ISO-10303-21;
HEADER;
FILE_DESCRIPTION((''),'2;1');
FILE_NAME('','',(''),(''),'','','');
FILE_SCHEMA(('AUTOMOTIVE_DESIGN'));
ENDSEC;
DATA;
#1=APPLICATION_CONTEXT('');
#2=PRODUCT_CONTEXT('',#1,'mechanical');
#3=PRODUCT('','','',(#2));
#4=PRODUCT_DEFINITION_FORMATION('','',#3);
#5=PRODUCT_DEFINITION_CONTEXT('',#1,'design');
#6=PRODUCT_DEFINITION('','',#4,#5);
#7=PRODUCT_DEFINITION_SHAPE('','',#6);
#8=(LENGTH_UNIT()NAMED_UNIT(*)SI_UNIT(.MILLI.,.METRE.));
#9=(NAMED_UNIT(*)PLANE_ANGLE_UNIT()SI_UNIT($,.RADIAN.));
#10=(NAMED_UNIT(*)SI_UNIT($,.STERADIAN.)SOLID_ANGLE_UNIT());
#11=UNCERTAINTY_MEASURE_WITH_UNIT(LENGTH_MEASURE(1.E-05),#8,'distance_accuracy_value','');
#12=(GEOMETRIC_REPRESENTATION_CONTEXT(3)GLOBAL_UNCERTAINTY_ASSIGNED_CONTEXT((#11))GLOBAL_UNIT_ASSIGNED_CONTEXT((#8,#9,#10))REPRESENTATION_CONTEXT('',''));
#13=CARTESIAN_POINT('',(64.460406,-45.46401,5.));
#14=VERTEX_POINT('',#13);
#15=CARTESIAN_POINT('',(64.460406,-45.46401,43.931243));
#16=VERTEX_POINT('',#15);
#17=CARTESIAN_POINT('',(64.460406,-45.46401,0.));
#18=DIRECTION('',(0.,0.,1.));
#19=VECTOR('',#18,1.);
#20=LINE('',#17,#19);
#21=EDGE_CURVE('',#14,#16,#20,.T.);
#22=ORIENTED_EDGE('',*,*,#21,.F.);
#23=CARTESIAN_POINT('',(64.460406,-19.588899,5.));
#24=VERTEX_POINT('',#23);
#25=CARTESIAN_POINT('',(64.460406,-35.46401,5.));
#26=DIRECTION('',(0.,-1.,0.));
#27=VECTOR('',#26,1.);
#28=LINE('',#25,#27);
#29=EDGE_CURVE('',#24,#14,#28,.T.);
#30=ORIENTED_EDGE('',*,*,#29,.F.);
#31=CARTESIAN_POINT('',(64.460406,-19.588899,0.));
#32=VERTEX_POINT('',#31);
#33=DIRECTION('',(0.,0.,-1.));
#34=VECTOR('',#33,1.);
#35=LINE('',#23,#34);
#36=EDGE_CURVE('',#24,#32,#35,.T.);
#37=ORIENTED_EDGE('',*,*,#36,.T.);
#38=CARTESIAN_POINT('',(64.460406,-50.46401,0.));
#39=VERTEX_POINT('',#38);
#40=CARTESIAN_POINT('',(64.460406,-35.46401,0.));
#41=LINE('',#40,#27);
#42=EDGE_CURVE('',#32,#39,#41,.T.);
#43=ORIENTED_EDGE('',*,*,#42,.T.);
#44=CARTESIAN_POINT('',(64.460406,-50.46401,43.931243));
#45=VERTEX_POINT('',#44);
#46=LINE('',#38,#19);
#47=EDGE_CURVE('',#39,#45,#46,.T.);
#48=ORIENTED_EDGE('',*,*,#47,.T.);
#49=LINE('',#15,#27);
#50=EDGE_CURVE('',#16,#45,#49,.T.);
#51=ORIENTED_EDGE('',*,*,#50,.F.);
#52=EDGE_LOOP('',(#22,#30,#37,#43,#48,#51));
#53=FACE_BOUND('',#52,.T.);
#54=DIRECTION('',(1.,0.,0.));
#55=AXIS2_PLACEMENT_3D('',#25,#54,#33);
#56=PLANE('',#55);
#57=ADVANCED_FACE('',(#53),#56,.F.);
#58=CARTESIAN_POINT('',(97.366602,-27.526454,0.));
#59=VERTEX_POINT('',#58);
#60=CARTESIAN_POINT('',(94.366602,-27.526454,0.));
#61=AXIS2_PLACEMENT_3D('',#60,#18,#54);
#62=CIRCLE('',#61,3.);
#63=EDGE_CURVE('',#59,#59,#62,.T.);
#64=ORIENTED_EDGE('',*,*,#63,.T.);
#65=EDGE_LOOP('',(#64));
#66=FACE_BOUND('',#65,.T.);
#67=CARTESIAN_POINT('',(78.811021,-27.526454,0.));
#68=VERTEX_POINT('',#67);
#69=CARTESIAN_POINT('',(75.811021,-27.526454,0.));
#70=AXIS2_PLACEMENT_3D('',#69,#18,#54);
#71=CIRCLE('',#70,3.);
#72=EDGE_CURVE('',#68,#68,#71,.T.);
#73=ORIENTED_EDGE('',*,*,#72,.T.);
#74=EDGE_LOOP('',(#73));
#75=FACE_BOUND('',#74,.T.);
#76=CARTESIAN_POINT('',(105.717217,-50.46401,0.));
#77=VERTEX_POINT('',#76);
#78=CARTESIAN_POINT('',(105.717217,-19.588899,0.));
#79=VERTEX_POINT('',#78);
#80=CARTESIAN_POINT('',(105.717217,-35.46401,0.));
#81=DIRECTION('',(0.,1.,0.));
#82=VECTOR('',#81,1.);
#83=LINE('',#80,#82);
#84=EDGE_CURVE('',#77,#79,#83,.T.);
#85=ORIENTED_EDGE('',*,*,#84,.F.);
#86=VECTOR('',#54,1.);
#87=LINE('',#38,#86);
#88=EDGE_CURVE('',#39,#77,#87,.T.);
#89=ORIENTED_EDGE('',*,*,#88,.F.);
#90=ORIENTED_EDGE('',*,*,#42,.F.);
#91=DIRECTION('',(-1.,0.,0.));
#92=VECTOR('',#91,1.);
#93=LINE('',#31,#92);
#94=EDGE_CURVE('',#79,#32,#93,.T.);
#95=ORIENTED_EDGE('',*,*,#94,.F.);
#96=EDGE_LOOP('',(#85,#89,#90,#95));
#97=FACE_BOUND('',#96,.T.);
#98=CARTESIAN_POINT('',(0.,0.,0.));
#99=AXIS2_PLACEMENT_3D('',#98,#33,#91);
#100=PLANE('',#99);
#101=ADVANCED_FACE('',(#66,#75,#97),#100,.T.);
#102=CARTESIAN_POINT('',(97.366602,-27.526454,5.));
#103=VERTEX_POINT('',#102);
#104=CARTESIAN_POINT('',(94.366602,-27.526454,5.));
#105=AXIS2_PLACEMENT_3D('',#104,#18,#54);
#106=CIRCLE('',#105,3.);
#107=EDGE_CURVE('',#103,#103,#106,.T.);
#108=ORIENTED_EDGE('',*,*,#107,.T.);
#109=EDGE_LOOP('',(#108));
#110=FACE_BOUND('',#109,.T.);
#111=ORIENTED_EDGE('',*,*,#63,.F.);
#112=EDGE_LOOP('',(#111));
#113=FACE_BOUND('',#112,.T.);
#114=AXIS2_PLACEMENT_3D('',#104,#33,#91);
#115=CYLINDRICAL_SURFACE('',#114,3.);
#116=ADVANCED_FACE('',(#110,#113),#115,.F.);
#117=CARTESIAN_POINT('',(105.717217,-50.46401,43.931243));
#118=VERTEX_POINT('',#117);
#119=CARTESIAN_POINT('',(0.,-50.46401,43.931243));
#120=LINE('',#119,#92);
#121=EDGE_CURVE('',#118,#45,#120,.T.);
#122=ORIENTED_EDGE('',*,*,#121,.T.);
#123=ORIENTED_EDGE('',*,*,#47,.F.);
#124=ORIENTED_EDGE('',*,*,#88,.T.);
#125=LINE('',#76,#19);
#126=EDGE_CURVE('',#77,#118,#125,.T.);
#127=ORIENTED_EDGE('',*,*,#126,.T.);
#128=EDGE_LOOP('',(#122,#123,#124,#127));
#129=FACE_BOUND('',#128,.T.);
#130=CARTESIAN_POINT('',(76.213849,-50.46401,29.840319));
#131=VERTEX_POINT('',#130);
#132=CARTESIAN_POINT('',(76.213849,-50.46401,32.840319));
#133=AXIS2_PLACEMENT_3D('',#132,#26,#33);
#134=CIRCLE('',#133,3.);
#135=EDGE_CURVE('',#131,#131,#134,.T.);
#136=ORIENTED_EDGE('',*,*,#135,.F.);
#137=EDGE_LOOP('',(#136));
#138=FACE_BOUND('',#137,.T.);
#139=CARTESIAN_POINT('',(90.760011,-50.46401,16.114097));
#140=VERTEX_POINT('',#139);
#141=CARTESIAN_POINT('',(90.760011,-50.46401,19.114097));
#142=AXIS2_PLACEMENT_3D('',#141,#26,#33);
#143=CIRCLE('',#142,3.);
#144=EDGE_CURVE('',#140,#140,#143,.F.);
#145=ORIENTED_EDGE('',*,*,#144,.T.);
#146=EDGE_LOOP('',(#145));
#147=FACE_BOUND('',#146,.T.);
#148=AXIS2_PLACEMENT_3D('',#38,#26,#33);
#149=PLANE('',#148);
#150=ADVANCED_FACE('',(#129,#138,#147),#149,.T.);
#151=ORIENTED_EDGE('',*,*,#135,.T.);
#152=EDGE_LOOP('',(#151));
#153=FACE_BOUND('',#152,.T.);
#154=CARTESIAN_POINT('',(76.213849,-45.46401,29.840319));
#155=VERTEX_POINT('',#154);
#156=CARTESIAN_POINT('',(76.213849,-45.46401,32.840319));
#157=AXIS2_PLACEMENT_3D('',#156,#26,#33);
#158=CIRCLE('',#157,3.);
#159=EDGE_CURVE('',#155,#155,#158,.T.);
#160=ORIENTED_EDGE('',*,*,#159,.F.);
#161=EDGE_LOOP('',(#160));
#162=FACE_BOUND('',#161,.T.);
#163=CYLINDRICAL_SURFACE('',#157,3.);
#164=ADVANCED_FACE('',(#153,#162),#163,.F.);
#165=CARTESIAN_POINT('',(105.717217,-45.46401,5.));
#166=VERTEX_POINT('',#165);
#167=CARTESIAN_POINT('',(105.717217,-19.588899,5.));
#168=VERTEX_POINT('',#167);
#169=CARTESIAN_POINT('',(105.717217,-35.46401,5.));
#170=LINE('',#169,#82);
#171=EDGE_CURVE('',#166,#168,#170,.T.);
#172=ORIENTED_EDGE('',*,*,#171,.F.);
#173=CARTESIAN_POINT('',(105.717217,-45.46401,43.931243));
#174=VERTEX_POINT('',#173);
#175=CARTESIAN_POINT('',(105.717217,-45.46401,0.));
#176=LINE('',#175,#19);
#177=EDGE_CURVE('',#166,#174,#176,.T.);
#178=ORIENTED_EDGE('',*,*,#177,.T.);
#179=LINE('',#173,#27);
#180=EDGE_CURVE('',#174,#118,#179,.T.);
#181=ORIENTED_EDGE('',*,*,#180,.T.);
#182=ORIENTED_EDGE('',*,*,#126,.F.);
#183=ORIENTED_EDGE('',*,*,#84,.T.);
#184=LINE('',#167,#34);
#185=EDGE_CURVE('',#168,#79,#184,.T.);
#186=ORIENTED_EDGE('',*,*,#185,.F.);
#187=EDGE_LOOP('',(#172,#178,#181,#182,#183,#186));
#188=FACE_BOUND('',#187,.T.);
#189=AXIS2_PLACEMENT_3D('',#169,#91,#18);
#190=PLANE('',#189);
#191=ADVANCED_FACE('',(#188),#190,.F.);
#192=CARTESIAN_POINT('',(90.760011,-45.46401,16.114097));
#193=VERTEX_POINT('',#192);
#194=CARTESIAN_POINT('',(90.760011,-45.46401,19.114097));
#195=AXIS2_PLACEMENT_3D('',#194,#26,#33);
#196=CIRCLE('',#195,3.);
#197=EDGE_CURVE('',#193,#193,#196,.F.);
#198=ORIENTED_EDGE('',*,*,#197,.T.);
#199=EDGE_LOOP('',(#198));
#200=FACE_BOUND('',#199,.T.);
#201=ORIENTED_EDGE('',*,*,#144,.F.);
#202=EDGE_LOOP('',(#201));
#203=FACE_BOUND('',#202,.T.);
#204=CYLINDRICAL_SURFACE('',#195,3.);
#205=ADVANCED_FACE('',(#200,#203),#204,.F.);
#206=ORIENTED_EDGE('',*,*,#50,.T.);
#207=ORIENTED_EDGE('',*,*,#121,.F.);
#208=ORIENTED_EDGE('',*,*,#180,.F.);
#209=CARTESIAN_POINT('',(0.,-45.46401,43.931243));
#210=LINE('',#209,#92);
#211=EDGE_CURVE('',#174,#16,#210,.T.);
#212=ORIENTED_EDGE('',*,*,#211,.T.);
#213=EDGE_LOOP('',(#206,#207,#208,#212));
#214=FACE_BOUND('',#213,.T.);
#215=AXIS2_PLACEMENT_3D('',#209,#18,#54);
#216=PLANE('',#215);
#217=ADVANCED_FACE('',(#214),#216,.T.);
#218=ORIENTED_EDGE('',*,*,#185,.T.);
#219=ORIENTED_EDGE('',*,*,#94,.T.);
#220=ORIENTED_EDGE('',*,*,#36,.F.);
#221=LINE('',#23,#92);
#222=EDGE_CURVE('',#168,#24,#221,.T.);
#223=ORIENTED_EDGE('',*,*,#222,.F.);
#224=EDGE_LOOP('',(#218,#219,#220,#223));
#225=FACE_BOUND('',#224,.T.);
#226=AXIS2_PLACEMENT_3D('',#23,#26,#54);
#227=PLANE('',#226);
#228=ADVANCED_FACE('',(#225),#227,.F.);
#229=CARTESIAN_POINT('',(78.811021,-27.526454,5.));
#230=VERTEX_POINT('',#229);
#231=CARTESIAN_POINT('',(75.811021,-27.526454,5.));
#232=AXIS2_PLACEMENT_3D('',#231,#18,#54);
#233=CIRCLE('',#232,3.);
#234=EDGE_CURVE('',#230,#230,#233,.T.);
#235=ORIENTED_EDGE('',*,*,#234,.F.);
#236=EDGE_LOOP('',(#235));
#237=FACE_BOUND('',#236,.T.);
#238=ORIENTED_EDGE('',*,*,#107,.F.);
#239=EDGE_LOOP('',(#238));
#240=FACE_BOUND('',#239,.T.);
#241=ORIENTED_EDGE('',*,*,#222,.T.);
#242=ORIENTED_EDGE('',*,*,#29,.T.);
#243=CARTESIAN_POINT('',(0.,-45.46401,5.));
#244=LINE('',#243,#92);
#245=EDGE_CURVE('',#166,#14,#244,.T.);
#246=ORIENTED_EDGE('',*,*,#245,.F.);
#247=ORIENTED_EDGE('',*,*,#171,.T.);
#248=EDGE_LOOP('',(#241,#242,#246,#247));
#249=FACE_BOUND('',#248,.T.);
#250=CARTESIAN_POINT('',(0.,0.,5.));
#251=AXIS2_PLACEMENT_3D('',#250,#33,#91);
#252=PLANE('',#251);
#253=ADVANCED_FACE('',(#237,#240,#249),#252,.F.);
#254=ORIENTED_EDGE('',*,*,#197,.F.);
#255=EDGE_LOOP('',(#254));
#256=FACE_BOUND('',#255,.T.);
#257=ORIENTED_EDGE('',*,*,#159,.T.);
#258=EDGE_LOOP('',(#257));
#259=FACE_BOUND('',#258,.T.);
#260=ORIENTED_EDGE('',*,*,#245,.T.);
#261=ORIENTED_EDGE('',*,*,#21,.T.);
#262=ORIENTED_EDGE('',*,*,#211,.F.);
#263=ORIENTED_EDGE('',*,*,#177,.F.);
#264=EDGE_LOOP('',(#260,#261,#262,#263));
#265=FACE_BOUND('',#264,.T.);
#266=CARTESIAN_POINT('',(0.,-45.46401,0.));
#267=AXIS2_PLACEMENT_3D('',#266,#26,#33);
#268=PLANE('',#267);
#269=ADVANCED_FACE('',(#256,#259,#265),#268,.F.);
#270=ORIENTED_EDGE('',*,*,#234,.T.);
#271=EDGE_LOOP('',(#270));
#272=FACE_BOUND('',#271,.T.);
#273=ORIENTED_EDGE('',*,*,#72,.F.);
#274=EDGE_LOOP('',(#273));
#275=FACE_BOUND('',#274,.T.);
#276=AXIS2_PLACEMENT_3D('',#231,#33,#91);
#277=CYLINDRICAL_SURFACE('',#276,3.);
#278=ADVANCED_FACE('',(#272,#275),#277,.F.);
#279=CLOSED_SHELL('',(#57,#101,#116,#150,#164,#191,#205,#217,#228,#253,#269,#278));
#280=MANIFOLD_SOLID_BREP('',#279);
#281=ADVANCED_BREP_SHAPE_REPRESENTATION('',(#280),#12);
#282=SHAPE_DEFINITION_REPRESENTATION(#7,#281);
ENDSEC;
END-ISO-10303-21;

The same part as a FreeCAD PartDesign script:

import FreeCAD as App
import Part
import Sketcher

V = App.Vector


def add_polygon(sketch, points):
    """Adds a closed chain of lines whose ends are joined by coincident constraints."""
    first, n = sketch.GeometryCount, len(points)
    for a, b in zip(points, points[1:] + points[:1]):
        sketch.addGeometry(Part.LineSegment(App.Vector(*a, 0), App.Vector(*b, 0)), False)
    for i in range(n):
        sketch.addConstraint(Sketcher.Constraint("Coincident", first + i, 2, first + (i + 1) % n, 1))

doc = App.newDocument("Part")
body = doc.addObject("PartDesign::Body", "Body")

sketch1 = body.newObject("Sketcher::SketchObject", "Sketch")
sketch1.AttachmentSupport = (doc.getObject("XY_Plane"), [""])
sketch1.MapMode = "FlatFace"
add_polygon(sketch1, [(64.5, -19.6), (64.5, -35.5), (105.7, -35.5), (105.7, -19.6)])
sketch1.addGeometry(Part.Circle(V(75.8, -27.5, 0), V(0, 0, 1), 3), False)
sketch1.addGeometry(Part.Circle(V(94.4, -27.5, 0), V(0, 0, 1), 3), False)
sketch1.addConstraint([
    Sketcher.Constraint("Vertical", 0),
    Sketcher.Constraint("Horizontal", 1),
    Sketcher.Constraint("Vertical", 2),
    Sketcher.Constraint("Horizontal", 3),
    Sketcher.Constraint("Equal", 4, 5),
    Sketcher.Constraint("Horizontal", 4, 3, 5, 3),
    Sketcher.Constraint("Diameter", 4, 6.0),
    Sketcher.Constraint("DistanceX", 1, 1, 1, 2, 41.256811),
    Sketcher.Constraint("DistanceY", 0, 2, 0, 1, 15.875112),
    Sketcher.Constraint("DistanceX", -1, 1, 5, 3, 94.366602),
    Sketcher.Constraint("DistanceY", 2, 2, -1, 1, 19.588899),
    Sketcher.Constraint("DistanceX", -1, 1, 4, 3, 75.811021),
    Sketcher.Constraint("DistanceY", 4, 3, -1, 1, 27.526454),
    Sketcher.Constraint("DistanceX", -1, 1, 0, 2, 64.460406),
])
pad1 = body.newObject("PartDesign::Pad", "Pad")
pad1.Profile = sketch1
pad1.Length = 5

sketch2 = body.newObject("Sketcher::SketchObject", "Sketch001")
sketch2.AttachmentSupport = (doc.getObject("XY_Plane"), [""])
sketch2.MapMode = "FlatFace"
sketch2.AttachmentOffset = App.Placement(V(0, 0, 5), App.Rotation())
add_polygon(sketch2, [(64, -35), (64, -50), (106, -50), (106, -35)])
sketch2.addConstraint([
    Sketcher.Constraint("Vertical", 0),
    Sketcher.Constraint("Horizontal", 1),
    Sketcher.Constraint("Vertical", 2),
    Sketcher.Constraint("Horizontal", 3),
    Sketcher.Constraint("DistanceY", 0, 2, 0, 1, 15.0),
    Sketcher.Constraint("DistanceX", 1, 1, 1, 2, 41.256811),
    Sketcher.Constraint("DistanceY", 0, 2, -1, 1, 50.46401),
    Sketcher.Constraint("DistanceX", -1, 1, 0, 2, 64.460406),
])
pad2 = body.newObject("PartDesign::Pad", "Pad001")
pad2.Profile = sketch2
pad2.Length = 5
pad2.Reversed = True

sketch3 = body.newObject("Sketcher::SketchObject", "Sketch002")
sketch3.AttachmentSupport = (doc.getObject("XZ_Plane"), [""])
sketch3.MapMode = "FlatFace"
sketch3.AttachmentOffset = App.Placement(V(0, 0, 50.46401), App.Rotation())
add_polygon(sketch3, [(64.5, 43.9), (64.5, 5), (105.7, 5), (105.7, 43.9)])
sketch3.addGeometry(Part.Circle(V(90.8, 19.1, 0), V(0, 0, 1), 3), False)
sketch3.addGeometry(Part.Circle(V(76.2, 32.8, 0), V(0, 0, 1), 3), False)
sketch3.addConstraint([
    Sketcher.Constraint("Vertical", 0),
    Sketcher.Constraint("Horizontal", 1),
    Sketcher.Constraint("Vertical", 2),
    Sketcher.Constraint("Horizontal", 3),
    Sketcher.Constraint("Equal", 4, 5),
    Sketcher.Constraint("Diameter", 4, 6.0),
    Sketcher.Constraint("DistanceY", -1, 1, 0, 2, 5.0),
    Sketcher.Constraint("DistanceX", 1, 1, 1, 2, 41.256811),
    Sketcher.Constraint("DistanceY", 0, 2, 0, 1, 38.931243),
    Sketcher.Constraint("DistanceX", -1, 1, 4, 3, 90.760011),
    Sketcher.Constraint("DistanceX", -1, 1, 5, 3, 76.213849),
    Sketcher.Constraint("DistanceY", -1, 1, 5, 3, 32.840319),
    Sketcher.Constraint("DistanceX", 5, 3, 1, 2, 29.503368),
    Sketcher.Constraint("DistanceY", -1, 1, 4, 3, 19.114097),
])
pad3 = body.newObject("PartDesign::Pad", "Pad002")
pad3.Profile = sketch3
pad3.Length = 5
pad3.Reversed = True

doc.recompute()
